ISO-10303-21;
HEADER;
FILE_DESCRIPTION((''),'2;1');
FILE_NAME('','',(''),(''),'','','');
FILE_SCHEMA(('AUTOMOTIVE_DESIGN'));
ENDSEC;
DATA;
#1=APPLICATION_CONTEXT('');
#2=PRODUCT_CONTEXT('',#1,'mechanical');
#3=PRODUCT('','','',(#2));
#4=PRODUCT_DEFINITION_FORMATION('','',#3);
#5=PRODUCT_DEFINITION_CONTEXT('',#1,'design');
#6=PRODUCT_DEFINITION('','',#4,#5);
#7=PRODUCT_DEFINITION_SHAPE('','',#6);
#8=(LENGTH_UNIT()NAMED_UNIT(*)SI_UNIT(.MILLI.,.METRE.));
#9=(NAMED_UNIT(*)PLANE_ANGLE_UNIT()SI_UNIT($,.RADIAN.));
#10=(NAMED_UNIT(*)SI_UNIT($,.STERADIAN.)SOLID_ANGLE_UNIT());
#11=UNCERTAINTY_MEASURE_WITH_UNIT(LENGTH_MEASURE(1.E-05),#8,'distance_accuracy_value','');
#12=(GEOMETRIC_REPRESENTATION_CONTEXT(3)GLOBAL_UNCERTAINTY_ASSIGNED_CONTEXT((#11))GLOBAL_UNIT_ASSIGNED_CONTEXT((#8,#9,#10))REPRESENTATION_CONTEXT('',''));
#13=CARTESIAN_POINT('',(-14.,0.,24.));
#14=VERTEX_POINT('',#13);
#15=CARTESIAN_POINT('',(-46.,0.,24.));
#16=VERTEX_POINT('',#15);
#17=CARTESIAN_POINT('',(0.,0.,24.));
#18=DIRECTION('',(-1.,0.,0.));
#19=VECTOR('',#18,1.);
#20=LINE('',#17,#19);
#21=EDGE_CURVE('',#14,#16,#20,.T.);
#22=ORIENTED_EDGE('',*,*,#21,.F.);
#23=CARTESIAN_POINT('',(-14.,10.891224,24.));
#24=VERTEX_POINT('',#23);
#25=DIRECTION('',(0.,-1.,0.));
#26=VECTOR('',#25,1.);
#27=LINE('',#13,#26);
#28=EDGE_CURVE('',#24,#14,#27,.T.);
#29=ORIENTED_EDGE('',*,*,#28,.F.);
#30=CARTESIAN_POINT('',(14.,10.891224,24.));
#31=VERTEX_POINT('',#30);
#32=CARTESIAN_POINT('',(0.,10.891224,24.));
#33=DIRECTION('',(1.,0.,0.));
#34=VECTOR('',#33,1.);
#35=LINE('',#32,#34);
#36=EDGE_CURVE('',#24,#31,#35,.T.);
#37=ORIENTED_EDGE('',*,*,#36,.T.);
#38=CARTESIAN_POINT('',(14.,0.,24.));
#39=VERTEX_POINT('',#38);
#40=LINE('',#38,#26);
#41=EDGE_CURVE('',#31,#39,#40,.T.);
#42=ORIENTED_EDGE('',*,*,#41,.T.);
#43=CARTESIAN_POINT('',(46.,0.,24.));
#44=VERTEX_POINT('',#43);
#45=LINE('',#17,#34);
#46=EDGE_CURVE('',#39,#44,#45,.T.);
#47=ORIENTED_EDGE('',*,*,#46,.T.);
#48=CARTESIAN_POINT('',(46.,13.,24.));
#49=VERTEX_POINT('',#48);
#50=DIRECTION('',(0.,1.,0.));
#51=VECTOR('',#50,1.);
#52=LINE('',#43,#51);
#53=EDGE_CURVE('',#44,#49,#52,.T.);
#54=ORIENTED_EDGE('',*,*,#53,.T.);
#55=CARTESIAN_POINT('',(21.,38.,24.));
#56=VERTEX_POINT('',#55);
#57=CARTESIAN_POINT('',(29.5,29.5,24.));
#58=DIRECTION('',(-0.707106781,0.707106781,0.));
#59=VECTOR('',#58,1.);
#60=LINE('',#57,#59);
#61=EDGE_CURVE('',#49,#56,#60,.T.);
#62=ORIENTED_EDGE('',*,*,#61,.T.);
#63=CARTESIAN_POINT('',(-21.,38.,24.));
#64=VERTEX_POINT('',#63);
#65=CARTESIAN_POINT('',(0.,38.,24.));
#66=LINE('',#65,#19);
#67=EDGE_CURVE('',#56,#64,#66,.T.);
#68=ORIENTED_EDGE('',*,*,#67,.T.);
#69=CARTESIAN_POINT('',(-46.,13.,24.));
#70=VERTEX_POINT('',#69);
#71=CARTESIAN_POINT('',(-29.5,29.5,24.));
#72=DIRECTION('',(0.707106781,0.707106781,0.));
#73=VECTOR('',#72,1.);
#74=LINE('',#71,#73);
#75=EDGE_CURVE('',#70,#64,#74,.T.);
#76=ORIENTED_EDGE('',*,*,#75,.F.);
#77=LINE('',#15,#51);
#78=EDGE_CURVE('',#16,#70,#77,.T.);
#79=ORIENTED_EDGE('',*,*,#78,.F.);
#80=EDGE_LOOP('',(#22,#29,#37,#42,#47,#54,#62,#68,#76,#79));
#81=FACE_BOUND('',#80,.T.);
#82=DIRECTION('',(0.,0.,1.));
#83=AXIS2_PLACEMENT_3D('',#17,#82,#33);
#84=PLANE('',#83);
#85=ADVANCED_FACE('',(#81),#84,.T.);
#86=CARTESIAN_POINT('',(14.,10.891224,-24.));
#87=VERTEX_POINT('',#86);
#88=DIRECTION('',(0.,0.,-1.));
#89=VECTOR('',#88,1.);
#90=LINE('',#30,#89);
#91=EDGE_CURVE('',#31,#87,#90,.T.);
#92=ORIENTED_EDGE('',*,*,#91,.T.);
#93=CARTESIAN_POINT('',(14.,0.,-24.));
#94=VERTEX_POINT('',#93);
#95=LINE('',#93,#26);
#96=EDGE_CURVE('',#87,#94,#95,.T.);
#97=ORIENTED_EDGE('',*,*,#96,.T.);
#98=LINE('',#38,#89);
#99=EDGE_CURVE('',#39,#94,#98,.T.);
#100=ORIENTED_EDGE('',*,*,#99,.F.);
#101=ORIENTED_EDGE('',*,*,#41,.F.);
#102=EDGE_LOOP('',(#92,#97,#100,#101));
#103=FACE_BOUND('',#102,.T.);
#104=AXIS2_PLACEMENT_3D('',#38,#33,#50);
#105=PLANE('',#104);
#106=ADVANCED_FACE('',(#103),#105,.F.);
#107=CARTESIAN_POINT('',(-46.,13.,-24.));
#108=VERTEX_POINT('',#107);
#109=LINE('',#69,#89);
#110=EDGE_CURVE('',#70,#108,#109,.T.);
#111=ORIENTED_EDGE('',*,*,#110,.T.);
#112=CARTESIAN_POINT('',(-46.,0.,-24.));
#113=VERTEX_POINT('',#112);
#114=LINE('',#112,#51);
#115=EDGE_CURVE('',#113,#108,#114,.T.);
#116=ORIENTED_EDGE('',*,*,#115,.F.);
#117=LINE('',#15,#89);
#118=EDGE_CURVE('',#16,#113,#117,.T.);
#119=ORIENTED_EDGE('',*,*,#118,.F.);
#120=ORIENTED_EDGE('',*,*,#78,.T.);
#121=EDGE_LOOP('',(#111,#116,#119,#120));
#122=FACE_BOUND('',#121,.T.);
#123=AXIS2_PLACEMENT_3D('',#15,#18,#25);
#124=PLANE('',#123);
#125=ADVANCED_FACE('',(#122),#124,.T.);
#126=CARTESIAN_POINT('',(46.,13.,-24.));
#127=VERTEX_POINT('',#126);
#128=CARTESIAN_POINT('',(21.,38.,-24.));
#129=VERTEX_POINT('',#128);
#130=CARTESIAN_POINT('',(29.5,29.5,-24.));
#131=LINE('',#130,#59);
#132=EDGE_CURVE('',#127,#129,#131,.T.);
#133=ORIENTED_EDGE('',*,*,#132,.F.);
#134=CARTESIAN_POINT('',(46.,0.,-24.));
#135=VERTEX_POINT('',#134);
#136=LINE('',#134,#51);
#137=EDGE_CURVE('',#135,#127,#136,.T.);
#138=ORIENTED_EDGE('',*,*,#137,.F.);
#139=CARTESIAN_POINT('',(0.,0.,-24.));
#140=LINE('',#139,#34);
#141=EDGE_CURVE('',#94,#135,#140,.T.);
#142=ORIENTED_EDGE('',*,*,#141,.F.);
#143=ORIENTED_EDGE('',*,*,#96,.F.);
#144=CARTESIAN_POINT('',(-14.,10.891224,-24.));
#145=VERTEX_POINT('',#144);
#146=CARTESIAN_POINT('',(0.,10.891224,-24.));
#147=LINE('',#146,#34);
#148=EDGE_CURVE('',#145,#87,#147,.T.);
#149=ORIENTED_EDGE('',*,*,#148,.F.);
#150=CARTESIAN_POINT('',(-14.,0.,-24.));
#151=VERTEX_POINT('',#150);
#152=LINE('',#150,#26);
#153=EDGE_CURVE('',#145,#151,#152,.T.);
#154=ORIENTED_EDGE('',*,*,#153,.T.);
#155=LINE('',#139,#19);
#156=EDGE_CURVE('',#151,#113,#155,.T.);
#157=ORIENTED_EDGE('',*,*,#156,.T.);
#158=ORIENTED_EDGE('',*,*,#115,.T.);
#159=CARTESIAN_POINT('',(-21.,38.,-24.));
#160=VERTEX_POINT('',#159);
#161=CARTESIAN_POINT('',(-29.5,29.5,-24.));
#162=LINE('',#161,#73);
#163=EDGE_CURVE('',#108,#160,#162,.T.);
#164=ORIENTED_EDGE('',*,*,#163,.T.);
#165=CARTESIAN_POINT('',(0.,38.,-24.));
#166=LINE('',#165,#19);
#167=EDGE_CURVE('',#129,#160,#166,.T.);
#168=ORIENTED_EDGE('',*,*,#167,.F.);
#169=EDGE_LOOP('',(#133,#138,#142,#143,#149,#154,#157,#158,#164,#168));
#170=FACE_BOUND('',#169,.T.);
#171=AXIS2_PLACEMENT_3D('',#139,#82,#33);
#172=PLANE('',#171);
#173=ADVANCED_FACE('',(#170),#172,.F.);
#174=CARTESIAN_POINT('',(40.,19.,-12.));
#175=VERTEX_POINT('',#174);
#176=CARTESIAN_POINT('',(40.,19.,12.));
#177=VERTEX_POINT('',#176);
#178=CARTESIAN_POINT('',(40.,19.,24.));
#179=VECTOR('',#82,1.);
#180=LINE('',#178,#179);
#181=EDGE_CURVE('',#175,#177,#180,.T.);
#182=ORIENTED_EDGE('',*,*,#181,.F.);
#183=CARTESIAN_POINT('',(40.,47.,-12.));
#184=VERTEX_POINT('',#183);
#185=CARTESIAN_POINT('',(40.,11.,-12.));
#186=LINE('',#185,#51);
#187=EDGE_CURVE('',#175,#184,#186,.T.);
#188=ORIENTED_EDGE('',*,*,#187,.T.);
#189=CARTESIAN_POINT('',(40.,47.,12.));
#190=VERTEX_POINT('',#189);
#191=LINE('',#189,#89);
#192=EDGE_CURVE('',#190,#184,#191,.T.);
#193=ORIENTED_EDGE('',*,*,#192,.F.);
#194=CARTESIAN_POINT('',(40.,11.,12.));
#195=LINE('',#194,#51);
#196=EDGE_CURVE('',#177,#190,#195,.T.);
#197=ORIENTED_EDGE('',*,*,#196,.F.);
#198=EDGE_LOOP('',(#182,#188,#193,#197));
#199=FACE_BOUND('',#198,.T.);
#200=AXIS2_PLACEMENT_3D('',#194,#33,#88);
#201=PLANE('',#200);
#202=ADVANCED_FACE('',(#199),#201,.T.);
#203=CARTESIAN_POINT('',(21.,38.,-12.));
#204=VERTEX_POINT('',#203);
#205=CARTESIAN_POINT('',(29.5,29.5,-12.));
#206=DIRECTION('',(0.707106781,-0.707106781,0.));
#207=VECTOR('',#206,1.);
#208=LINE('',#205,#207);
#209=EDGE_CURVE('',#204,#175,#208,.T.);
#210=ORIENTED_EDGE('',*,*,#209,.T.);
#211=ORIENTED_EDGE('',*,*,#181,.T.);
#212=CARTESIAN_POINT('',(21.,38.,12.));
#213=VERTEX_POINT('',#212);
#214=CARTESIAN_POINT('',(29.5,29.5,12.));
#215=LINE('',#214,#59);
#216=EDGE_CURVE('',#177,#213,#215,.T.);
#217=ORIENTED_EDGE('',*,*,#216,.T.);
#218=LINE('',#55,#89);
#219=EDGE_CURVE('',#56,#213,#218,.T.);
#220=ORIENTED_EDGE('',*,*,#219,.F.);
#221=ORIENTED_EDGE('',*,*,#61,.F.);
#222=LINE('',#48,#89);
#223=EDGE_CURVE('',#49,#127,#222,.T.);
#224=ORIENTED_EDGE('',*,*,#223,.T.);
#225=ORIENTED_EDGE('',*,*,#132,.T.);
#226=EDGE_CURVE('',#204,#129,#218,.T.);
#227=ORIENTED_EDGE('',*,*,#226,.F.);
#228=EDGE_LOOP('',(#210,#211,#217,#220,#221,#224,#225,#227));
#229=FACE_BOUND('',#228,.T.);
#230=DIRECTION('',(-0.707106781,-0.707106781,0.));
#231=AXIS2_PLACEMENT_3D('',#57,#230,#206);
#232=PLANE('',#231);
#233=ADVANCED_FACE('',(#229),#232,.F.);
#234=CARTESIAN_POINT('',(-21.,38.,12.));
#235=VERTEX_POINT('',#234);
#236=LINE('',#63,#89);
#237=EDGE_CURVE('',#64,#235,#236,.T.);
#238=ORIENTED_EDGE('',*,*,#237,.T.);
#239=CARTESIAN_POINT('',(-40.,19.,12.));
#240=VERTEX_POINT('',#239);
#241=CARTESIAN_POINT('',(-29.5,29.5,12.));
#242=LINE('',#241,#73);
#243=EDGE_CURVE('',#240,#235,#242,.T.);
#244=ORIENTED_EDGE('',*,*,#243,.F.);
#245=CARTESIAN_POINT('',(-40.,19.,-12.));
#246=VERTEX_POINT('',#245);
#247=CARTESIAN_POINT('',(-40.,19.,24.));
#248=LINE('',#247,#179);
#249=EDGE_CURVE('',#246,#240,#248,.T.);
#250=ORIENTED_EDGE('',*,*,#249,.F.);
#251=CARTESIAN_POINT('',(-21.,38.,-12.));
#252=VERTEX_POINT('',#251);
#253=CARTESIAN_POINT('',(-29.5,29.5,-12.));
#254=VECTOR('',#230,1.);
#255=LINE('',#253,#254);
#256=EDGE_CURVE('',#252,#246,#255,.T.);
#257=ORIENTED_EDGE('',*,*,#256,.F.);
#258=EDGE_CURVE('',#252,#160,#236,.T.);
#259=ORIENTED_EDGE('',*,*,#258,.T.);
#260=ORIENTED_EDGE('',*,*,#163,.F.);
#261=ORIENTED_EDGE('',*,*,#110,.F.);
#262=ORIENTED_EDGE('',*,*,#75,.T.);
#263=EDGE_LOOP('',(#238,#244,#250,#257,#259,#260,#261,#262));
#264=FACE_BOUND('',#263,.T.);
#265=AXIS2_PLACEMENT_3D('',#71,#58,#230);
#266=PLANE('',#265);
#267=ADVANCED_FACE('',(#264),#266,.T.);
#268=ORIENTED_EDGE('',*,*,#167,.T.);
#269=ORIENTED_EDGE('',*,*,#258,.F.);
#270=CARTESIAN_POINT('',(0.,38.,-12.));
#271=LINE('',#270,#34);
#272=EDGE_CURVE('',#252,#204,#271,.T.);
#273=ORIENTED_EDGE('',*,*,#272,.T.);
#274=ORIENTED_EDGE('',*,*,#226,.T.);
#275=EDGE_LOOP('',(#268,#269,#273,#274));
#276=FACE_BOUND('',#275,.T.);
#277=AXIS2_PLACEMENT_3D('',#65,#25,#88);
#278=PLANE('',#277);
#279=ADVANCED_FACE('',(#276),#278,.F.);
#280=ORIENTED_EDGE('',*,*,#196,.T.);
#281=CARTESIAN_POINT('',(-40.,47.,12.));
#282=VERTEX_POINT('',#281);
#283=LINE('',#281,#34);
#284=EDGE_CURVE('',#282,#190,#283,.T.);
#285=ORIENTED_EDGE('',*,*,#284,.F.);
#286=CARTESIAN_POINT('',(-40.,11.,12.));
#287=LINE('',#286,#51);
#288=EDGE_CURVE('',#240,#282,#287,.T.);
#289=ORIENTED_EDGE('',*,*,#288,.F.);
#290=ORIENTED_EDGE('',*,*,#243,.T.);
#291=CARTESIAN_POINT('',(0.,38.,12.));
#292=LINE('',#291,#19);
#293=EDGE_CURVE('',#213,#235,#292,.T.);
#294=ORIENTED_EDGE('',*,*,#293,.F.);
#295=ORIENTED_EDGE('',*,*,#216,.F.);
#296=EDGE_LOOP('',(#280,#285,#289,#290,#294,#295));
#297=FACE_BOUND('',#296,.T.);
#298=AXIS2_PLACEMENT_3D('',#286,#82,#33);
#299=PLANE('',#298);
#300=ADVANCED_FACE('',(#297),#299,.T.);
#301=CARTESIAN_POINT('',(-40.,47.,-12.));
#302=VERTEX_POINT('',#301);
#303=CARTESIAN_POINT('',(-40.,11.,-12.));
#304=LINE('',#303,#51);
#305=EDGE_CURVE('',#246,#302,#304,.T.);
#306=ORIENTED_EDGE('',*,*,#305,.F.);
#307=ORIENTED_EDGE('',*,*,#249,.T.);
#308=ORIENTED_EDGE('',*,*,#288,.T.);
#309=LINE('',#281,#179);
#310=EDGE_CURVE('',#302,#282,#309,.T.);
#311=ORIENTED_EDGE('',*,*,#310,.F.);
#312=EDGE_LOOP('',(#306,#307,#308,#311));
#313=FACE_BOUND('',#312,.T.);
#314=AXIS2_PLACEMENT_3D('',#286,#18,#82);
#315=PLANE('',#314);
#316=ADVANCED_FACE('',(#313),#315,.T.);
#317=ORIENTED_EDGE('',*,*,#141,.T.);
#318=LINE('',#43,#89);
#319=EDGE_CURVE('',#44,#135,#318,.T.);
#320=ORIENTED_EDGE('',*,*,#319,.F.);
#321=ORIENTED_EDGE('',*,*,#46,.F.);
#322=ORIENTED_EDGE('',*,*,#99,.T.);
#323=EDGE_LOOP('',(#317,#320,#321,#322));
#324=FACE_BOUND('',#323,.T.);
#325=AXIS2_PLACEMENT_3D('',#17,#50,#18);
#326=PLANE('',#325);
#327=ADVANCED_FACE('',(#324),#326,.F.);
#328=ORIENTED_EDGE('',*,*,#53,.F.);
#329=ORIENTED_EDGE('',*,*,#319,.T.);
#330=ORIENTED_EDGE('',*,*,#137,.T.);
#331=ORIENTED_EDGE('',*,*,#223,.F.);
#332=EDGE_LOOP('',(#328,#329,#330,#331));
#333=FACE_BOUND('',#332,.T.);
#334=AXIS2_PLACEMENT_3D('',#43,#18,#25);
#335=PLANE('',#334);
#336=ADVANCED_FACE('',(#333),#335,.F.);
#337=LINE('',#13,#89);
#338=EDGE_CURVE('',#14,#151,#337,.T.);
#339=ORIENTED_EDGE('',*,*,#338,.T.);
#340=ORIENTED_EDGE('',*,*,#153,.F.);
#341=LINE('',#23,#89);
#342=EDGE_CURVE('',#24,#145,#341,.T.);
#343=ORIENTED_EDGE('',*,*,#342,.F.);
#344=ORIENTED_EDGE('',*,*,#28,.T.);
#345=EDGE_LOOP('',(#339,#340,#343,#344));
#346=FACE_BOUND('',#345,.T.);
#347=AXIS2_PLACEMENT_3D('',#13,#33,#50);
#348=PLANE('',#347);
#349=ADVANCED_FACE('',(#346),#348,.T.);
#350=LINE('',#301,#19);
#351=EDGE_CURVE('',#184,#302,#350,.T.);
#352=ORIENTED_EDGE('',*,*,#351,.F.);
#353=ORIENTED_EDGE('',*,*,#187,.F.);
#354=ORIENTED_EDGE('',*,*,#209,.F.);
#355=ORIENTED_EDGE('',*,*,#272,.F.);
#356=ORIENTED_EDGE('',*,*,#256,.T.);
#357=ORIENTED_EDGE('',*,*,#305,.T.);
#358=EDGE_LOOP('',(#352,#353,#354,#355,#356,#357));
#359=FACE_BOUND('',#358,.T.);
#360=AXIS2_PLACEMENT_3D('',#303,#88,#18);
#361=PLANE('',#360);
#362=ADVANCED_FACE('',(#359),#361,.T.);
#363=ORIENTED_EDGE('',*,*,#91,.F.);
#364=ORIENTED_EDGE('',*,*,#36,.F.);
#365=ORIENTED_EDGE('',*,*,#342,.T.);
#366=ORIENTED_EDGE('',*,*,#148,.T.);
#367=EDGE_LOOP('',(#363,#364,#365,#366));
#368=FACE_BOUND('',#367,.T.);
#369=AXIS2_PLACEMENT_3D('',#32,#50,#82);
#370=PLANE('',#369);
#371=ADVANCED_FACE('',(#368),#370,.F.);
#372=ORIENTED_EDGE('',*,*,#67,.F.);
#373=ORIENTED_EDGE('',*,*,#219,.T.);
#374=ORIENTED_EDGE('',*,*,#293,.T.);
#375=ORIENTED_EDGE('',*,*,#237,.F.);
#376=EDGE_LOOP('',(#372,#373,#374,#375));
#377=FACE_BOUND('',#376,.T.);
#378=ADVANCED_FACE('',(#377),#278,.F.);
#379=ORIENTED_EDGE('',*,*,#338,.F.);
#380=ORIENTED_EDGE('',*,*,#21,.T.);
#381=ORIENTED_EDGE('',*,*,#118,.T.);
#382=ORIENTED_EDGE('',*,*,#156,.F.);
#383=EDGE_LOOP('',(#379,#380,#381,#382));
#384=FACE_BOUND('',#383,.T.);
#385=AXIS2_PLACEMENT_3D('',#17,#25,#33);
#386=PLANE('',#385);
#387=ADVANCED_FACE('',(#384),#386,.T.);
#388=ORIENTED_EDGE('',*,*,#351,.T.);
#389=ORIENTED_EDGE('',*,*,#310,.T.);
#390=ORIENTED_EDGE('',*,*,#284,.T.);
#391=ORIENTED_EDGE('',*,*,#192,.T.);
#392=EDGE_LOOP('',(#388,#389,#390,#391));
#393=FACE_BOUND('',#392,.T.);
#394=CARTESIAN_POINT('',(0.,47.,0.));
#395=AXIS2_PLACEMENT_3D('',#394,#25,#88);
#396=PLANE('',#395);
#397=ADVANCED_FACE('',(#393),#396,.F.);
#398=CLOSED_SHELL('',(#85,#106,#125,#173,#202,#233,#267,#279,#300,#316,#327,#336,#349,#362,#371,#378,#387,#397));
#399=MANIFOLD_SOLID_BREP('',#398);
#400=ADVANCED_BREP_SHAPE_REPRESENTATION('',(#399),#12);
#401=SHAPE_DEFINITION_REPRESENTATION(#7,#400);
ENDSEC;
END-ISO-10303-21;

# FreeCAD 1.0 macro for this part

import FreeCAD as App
import Part
import Sketcher

V = App.Vector
Q = App.Units.Quantity

doc = App.newDocument("Part")
params = doc.addObject("Spreadsheet::Sheet", "Params")
for row, (alias, value) in enumerate([
    ("sketch1_width", "28 mm"),
    ("sketch1_width2", "32 mm"),
    ("sketch1_width3", "42 mm"),
    ("sketch1_height", "13 mm"),
    ("pad1_length", "48 mm"),
    ("sketch2_width", "80 mm"),
    ("sketch2_height", "24 mm"),
    ("pad2_length", "36 mm"),
], start=1):
    params.set(f"A{row}", alias)
    params.set(f"B{row}", "=" + value)
    params.setAlias(f"B{row}", alias)

body = doc.addObject("PartDesign::Body", "Body")

# Sketch on XY plane
sketch1 = doc.addObject("Sketcher::SketchObject", "Sketch")
body.addObject(sketch1)
sketch1.AttachmentSupport = (doc.XY_Plane, [""])
sketch1.MapMode = "FlatFace"
sketch1.addGeometry(Part.LineSegment(V(-14, 11, 0), V(14, 11, 0)), False)
sketch1.addGeometry(Part.LineSegment(V(14, 11, 0), V(14, 0, 0)), False)
sketch1.addGeometry(Part.LineSegment(V(14, 0, 0), V(46, 0, 0)), False)
sketch1.addGeometry(Part.LineSegment(V(46, 0, 0), V(46, 13, 0)), False)
sketch1.addGeometry(Part.LineSegment(V(46, 13, 0), V(21, 38, 0)), False)
sketch1.addGeometry(Part.LineSegment(V(21, 38, 0), V(-21, 38, 0)), False)
sketch1.addGeometry(Part.LineSegment(V(-21, 38, 0), V(-46, 13, 0)), False)
sketch1.addGeometry(Part.LineSegment(V(-46, 13, 0), V(-46, 0, 0)), False)
sketch1.addGeometry(Part.LineSegment(V(-46, 0, 0), V(-14, 0, 0)), False)
sketch1.addGeometry(Part.LineSegment(V(-14, 0, 0), V(-14, 11, 0)), False)
sketch1.addConstraint(Sketcher.Constraint("Coincident", 0, 2, 1, 1))
sketch1.addConstraint(Sketcher.Constraint("Coincident", 1, 2, 2, 1))
sketch1.addConstraint(Sketcher.Constraint("Coincident", 2, 2, 3, 1))
sketch1.addConstraint(Sketcher.Constraint("Coincident", 3, 2, 4, 1))
sketch1.addConstraint(Sketcher.Constraint("Coincident", 4, 2, 5, 1))
sketch1.addConstraint(Sketcher.Constraint("Coincident", 5, 2, 6, 1))
sketch1.addConstraint(Sketcher.Constraint("Coincident", 6, 2, 7, 1))
sketch1.addConstraint(Sketcher.Constraint("Coincident", 7, 2, 8, 1))
sketch1.addConstraint(Sketcher.Constraint("Coincident", 8, 2, 9, 1))
sketch1.addConstraint(Sketcher.Constraint("Coincident", 9, 2, 0, 1))
sketch1.addConstraint(Sketcher.Constraint("Horizontal", 0))
sketch1.addConstraint(Sketcher.Constraint("Vertical", 1))
sketch1.addConstraint(Sketcher.Constraint("Horizontal", 2))
sketch1.addConstraint(Sketcher.Constraint("Vertical", 3))
sketch1.addConstraint(Sketcher.Constraint("Horizontal", 5))
sketch1.addConstraint(Sketcher.Constraint("Vertical", 7))
sketch1.addConstraint(Sketcher.Constraint("Horizontal", 8))
sketch1.addConstraint(Sketcher.Constraint("Vertical", 9))
sketch1.addConstraint(Sketcher.Constraint("Symmetric", 2, 2, 7, 2, -1, 1))
sketch1.addConstraint(Sketcher.Constraint("Symmetric", 1, 2, 8, 2, -2))
sketch1.addConstraint(Sketcher.Constraint("Perpendicular", 4, 6))
sketch1.addConstraint(Sketcher.Constraint("Horizontal", 3, 2, 6, 2))
sketch1.addConstraint(Sketcher.Constraint("Equal", 4, 6))
sketch1.addConstraint(Sketcher.Constraint("DistanceX", 0, 1, 0, 2, Q("28 mm")))
sketch1.addConstraint(Sketcher.Constraint("DistanceX", 2, 1, 2, 2, Q("32 mm")))
sketch1.addConstraint(Sketcher.Constraint("DistanceX", 5, 2, 5, 1, Q("42 mm")))
sketch1.addConstraint(Sketcher.Constraint("DistanceY", 3, 1, 3, 2, Q("13 mm")))
sketch1.addConstraint(Sketcher.Constraint("DistanceY", 1, 2, 1, 1, Q("10.891224 mm")))
sketch1.setExpression("Constraints[23]", "Params.sketch1_width")
sketch1.setExpression("Constraints[24]", "Params.sketch1_width2")
sketch1.setExpression("Constraints[25]", "Params.sketch1_width3")
sketch1.setExpression("Constraints[26]", "Params.sketch1_height")
pad1 = doc.addObject("PartDesign::Pad", "Pad")
body.addObject(pad1)
pad1.Profile = sketch1
pad1.setExpression("Length", "Params.pad1_length")
pad1.Midplane = True

# Sketch on XZ plane
sketch2 = doc.addObject("Sketcher::SketchObject", "Sketch001")
body.addObject(sketch2)
sketch2.AttachmentSupport = (doc.XZ_Plane, [""])
sketch2.MapMode = "FlatFace"
sketch2.AttachmentOffset = App.Placement(V(0, 0, -47), App.Rotation())
sketch2.addGeometry(Part.LineSegment(V(-40, -12, 0), V(-40, 12, 0)), False)
sketch2.addGeometry(Part.LineSegment(V(-40, 12, 0), V(40, 12, 0)), False)
sketch2.addGeometry(Part.LineSegment(V(40, 12, 0), V(40, -12, 0)), False)
sketch2.addGeometry(Part.LineSegment(V(40, -12, 0), V(-40, -12, 0)), False)
sketch2.addConstraint(Sketcher.Constraint("Coincident", 0, 2, 1, 1))
sketch2.addConstraint(Sketcher.Constraint("Coincident", 1, 2, 2, 1))
sketch2.addConstraint(Sketcher.Constraint("Coincident", 2, 2, 3, 1))
sketch2.addConstraint(Sketcher.Constraint("Coincident", 3, 2, 0, 1))
sketch2.addConstraint(Sketcher.Constraint("Vertical", 0))
sketch2.addConstraint(Sketcher.Constraint("Horizontal", 1))
sketch2.addConstraint(Sketcher.Constraint("Vertical", 2))
sketch2.addConstraint(Sketcher.Constraint("Horizontal", 3))
sketch2.addConstraint(Sketcher.Constraint("Symmetric", 0, 2, 2, 2, -1, 1))
sketch2.addConstraint(Sketcher.Constraint("DistanceX", 1, 1, 1, 2, Q("80 mm")))
sketch2.addConstraint(Sketcher.Constraint("DistanceY", 0, 1, 0, 2, Q("24 mm")))
sketch2.setExpression("Constraints[9]", "Params.sketch2_width")
sketch2.setExpression("Constraints[10]", "Params.sketch2_height")
pad2 = doc.addObject("PartDesign::Pad", "Pad001")
body.addObject(pad2)
pad2.Profile = sketch2
pad2.setExpression("Length", "Params.pad2_length")

doc.recompute()
